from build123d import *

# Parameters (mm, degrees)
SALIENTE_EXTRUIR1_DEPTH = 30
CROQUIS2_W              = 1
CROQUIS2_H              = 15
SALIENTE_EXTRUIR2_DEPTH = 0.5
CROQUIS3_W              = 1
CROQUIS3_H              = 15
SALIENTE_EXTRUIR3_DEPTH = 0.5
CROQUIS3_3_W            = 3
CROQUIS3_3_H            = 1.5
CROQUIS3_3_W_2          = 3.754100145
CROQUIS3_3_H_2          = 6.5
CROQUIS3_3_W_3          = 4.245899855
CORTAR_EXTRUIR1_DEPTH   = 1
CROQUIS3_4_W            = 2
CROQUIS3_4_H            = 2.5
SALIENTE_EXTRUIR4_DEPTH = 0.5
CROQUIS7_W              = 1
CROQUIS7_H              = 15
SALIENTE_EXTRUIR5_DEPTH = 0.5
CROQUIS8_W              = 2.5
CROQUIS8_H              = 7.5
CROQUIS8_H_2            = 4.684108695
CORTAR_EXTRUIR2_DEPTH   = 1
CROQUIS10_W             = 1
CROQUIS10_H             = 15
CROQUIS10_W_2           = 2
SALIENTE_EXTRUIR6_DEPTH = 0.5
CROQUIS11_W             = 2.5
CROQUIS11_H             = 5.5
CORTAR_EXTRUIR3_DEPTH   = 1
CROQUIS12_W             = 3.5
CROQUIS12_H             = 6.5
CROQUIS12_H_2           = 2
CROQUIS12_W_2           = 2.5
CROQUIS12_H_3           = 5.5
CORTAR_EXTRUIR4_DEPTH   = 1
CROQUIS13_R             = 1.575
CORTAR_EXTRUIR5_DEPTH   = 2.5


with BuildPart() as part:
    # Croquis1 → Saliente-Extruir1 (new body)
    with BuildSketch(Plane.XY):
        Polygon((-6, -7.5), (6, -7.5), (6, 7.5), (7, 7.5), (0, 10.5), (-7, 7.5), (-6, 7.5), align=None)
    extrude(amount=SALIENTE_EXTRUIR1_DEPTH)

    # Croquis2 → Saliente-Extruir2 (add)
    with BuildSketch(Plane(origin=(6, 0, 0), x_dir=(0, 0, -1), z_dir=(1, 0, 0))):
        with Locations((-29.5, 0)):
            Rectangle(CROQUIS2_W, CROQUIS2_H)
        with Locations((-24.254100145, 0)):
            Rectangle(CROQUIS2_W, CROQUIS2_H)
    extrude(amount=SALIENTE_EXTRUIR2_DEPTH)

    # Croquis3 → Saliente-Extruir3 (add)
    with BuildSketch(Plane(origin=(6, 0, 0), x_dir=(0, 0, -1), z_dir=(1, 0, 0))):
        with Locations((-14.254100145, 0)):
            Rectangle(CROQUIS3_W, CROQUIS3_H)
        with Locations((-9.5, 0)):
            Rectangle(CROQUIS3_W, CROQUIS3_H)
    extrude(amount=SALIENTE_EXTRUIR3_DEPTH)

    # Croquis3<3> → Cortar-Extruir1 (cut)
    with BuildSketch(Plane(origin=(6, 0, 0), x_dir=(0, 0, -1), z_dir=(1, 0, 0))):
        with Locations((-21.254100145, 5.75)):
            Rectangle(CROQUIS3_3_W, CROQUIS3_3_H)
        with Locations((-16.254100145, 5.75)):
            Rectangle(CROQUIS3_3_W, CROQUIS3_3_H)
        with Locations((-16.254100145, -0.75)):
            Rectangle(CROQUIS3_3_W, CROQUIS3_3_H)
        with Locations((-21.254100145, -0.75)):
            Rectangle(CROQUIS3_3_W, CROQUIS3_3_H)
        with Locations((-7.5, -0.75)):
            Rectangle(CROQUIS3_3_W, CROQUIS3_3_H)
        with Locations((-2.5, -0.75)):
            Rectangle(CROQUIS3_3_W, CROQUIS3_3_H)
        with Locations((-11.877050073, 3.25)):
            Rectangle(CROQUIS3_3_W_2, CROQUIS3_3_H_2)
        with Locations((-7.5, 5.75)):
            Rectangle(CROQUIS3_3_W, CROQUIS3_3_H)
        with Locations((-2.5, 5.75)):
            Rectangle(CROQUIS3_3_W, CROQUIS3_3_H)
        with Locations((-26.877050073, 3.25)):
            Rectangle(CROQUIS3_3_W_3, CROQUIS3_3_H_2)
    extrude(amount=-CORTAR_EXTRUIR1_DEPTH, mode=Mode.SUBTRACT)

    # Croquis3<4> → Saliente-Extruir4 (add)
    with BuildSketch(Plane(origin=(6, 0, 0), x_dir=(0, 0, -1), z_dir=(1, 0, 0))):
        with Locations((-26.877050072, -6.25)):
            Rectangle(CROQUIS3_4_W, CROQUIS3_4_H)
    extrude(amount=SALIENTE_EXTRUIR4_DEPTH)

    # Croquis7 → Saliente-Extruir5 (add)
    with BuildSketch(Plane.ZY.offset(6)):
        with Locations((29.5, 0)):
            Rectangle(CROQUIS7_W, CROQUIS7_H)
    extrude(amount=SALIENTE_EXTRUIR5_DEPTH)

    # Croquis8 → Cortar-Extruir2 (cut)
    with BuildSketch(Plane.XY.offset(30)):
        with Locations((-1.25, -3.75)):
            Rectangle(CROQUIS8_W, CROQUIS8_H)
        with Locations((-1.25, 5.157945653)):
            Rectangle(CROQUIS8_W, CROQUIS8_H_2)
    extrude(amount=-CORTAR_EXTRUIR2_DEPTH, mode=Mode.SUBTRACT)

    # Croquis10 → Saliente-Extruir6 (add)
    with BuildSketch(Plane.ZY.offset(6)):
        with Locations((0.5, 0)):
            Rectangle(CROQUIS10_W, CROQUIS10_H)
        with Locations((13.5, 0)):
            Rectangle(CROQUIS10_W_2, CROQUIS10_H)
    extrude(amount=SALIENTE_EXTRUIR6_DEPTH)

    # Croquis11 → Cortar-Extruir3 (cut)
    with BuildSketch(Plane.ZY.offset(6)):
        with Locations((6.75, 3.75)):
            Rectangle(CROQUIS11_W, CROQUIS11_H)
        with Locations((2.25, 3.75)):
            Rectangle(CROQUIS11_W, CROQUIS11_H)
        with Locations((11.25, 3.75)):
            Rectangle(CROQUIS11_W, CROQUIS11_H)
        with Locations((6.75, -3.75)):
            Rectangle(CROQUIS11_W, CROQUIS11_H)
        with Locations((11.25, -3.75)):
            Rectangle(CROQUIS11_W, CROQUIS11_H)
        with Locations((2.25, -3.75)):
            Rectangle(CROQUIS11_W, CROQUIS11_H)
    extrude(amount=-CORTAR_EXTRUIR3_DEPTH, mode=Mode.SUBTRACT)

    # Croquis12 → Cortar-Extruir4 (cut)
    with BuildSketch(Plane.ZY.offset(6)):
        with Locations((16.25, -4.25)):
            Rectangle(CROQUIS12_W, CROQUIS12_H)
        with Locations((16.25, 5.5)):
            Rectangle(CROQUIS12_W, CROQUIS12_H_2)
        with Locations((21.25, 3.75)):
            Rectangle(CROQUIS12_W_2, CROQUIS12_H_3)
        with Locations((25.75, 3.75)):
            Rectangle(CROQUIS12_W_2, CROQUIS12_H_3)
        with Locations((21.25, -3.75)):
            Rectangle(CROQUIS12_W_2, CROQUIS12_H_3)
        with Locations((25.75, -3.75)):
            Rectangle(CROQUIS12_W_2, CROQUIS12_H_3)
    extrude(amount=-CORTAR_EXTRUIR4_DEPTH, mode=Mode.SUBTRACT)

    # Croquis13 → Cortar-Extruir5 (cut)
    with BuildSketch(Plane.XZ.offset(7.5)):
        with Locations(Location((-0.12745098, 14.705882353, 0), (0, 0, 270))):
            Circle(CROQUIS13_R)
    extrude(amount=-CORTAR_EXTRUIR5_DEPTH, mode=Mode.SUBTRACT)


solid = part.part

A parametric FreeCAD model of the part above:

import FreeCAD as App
import Part
import Sketcher

V = App.Vector
Q = App.Units.Quantity

doc = App.newDocument("Part")
params = doc.addObject("Spreadsheet::Sheet", "Params")
for row, (alias, value) in enumerate([
    ("sketch1_width", "12 mm"),
    ("sketch1_width2", "1 mm"),
    ("sketch1_height", "15 mm"),
    ("pad1_length", "30 mm"),
    ("sketch2_width", "15 mm"),
    ("sketch2_height", "1 mm"),
    ("pad2_length", "0.5 mm"),
    ("sketch3_width", "15 mm"),
    ("sketch3_height", "1 mm"),
    ("pad3_length", "0.5 mm"),
    ("sketch4_height", "3 mm"),
    ("sketch4_width", "1.5 mm"),
    ("sketch4_width2", "6.5 mm"),
    ("pocket1_length", "1 mm"),
    ("sketch5_height", "2 mm"),
    ("sketch5_width", "2.5 mm"),
    ("pad4_length", "0.5 mm"),
    ("sketch6_width", "15 mm"),
    ("sketch6_height", "1 mm"),
    ("pad5_length", "0.5 mm"),
    ("sketch7_width", "2.5 mm"),
    ("sketch7_height", "7.5 mm"),
    ("pocket2_length", "1 mm"),
    ("sketch8_width", "15 mm"),
    ("sketch8_height", "1 mm"),
    ("sketch8_height2", "2 mm"),
    ("pad6_length", "0.5 mm"),
    ("sketch9_width", "5.5 mm"),
    ("sketch9_height", "2.5 mm"),
    ("pocket3_length", "1 mm"),
    ("sketch10_width", "2 mm"),
    ("sketch10_width2", "6.5 mm"),
    ("sketch10_width3", "5.5 mm"),
    ("sketch10_height", "3.5 mm"),
    ("sketch10_height2", "2.5 mm"),
    ("pocket4_length", "1 mm"),
    ("sketch11_diameter", "3.15 mm"),
    ("pocket5_length", "2.5 mm"),
], start=1):
    params.set(f"A{row}", alias)
    params.set(f"B{row}", "=" + value)
    params.setAlias(f"B{row}", alias)

body = doc.addObject("PartDesign::Body", "Body")

sketch1 = body.newObject("Sketcher::SketchObject", "Sketch")
sketch1.AttachmentSupport = (doc.getObject("XY_Plane"), [""])
sketch1.MapMode = "FlatFace"
sketch1.addGeometry([
    Part.LineSegment(V(-6, -7.5, 0), V(6, -7.5, 0)),
    Part.LineSegment(V(6, -7.5, 0), V(6, 7.5, 0)),
    Part.LineSegment(V(6, 7.5, 0), V(7, 7.5, 0)),
    Part.LineSegment(V(7, 7.5, 0), V(0, 10.5, 0)),
    Part.LineSegment(V(0, 10.5, 0), V(-7, 7.5, 0)),
    Part.LineSegment(V(-7, 7.5, 0), V(-6, 7.5, 0)),
    Part.LineSegment(V(-6, 7.5, 0), V(-6, -7.5, 0)),
], False)
sketch1.addConstraint([
    Sketcher.Constraint("Coincident", 0, 2, 1, 1),
    Sketcher.Constraint("Coincident", 1, 2, 2, 1),
    Sketcher.Constraint("Coincident", 2, 2, 3, 1),
    Sketcher.Constraint("Coincident", 3, 2, 4, 1),
    Sketcher.Constraint("Coincident", 4, 2, 5, 1),
    Sketcher.Constraint("Coincident", 5, 2, 6, 1),
    Sketcher.Constraint("Coincident", 6, 2, 0, 1),
    Sketcher.Constraint("Horizontal", 0),
    Sketcher.Constraint("Vertical", 1),
    Sketcher.Constraint("Horizontal", 2),
    Sketcher.Constraint("Horizontal", 5),
    Sketcher.Constraint("Vertical", 6),
    Sketcher.Constraint("Symmetric", 0, 2, 5, 2, -1, 1),
    Sketcher.Constraint("Symmetric", 2, 2, 4, 2, -2),
    Sketcher.Constraint("PointOnObject", 3, 2, -2),
    Sketcher.Constraint("DistanceX", 0, 1, 0, 2, Q("12 mm")),
    Sketcher.Constraint("DistanceX", 2, 1, 2, 2, Q("1 mm")),
    Sketcher.Constraint("DistanceY", 1, 1, 1, 2, Q("15 mm")),
    Sketcher.Constraint("DistanceY", 1, 2, 3, 2, Q("3 mm")),
])
sketch1.setExpression("Constraints[15]", "Params.sketch1_width")
sketch1.setExpression("Constraints[16]", "Params.sketch1_width2")
sketch1.setExpression("Constraints[17]", "Params.sketch1_height")
pad1 = body.newObject("PartDesign::Pad", "Pad")
pad1.Profile = sketch1
pad1.setExpression("Length", "Params.pad1_length")

sketch2 = body.newObject("Sketcher::SketchObject", "Sketch001")
sketch2.AttachmentSupport = (doc.getObject("YZ_Plane"), [""])
sketch2.MapMode = "FlatFace"
sketch2.AttachmentOffset = App.Placement(V(0, 0, 6), App.Rotation())
sketch2.addGeometry([
    Part.LineSegment(V(7.5, 30, 0), V(-7.5, 30, 0)),
    Part.LineSegment(V(-7.5, 30, 0), V(-7.5, 29, 0)),
    Part.LineSegment(V(-7.5, 29, 0), V(7.5, 29, 0)),
    Part.LineSegment(V(7.5, 29, 0), V(7.5, 30, 0)),
    Part.LineSegment(V(7.5, 24.8, 0), V(-7.5, 24.8, 0)),
    Part.LineSegment(V(-7.5, 24.8, 0), V(-7.5, 23.8, 0)),
    Part.LineSegment(V(-7.5, 23.8, 0), V(7.5, 23.8, 0)),
    Part.LineSegment(V(7.5, 23.8, 0), V(7.5, 24.8, 0)),
], False)
sketch2.addConstraint([
    Sketcher.Constraint("Coincident", 0, 2, 1, 1),
    Sketcher.Constraint("Coincident", 1, 2, 2, 1),
    Sketcher.Constraint("Coincident", 2, 2, 3, 1),
    Sketcher.Constraint("Coincident", 3, 2, 0, 1),
    Sketcher.Constraint("Coincident", 4, 2, 5, 1),
    Sketcher.Constraint("Coincident", 5, 2, 6, 1),
    Sketcher.Constraint("Coincident", 6, 2, 7, 1),
    Sketcher.Constraint("Coincident", 7, 2, 4, 1),
    Sketcher.Constraint("Horizontal", 0),
    Sketcher.Constraint("Vertical", 1),
    Sketcher.Constraint("Horizontal", 2),
    Sketcher.Constraint("Vertical", 3),
    Sketcher.Constraint("Horizontal", 4),
    Sketcher.Constraint("Vertical", 5),
    Sketcher.Constraint("Horizontal", 6),
    Sketcher.Constraint("Vertical", 7),
    Sketcher.Constraint("Vertical", 1, 2, 4, 2),
    Sketcher.Constraint("Vertical", 3, 2, 6, 2),
    Sketcher.Constraint("Equal", 3, 5),
    Sketcher.Constraint("DistanceX", 0, 2, 0, 1, Q("15 mm")),
    Sketcher.Constraint("DistanceY", 1, 2, 1, 1, Q("1 mm")),
    Sketcher.Constraint("DistanceY", -1, 1, 0, 2, Q("30 mm")),
    Sketcher.Constraint("DistanceX", 0, 2, -1, 1, Q("7.5 mm")),
    Sketcher.Constraint("DistanceY", -1, 1, 4, 2, Q("24.7541 mm")),
])
sketch2.setExpression("Constraints[19]", "Params.sketch2_width")
sketch2.setExpression("Constraints[20]", "Params.sketch2_height")
pad2 = body.newObject("PartDesign::Pad", "Pad001")
pad2.Profile = sketch2
pad2.setExpression("Length", "Params.pad2_length")

sketch3 = body.newObject("Sketcher::SketchObject", "Sketch002")
sketch3.AttachmentSupport = (doc.getObject("YZ_Plane"), [""])
sketch3.MapMode = "FlatFace"
sketch3.AttachmentOffset = App.Placement(V(0, 0, 6), App.Rotation())
sketch3.addGeometry([
    Part.LineSegment(V(7.5, 14.8, 0), V(-7.5, 14.8, 0)),
    Part.LineSegment(V(-7.5, 14.8, 0), V(-7.5, 13.8, 0)),
    Part.LineSegment(V(-7.5, 13.8, 0), V(7.5, 13.8, 0)),
    Part.LineSegment(V(7.5, 13.8, 0), V(7.5, 14.8, 0)),
    Part.LineSegment(V(7.5, 10, 0), V(-7.5, 10, 0)),
    Part.LineSegment(V(-7.5, 10, 0), V(-7.5, 9, 0)),
    Part.LineSegment(V(-7.5, 9, 0), V(7.5, 9, 0)),
    Part.LineSegment(V(7.5, 9, 0), V(7.5, 10, 0)),
], False)
sketch3.addConstraint([
    Sketcher.Constraint("Coincident", 0, 2, 1, 1),
    Sketcher.Constraint("Coincident", 1, 2, 2, 1),
    Sketcher.Constraint("Coincident", 2, 2, 3, 1),
    Sketcher.Constraint("Coincident", 3, 2, 0, 1),
    Sketcher.Constraint("Coincident", 4, 2, 5, 1),
    Sketcher.Constraint("Coincident", 5, 2, 6, 1),
    Sketcher.Constraint("Coincident", 6, 2, 7, 1),
    Sketcher.Constraint("Coincident", 7, 2, 4, 1),
    Sketcher.Constraint("Horizontal", 0),
    Sketcher.Constraint("Vertical", 1),
    Sketcher.Constraint("Horizontal", 2),
    Sketcher.Constraint("Vertical", 3),
    Sketcher.Constraint("Horizontal", 4),
    Sketcher.Constraint("Vertical", 5),
    Sketcher.Constraint("Horizontal", 6),
    Sketcher.Constraint("Vertical", 7),
    Sketcher.Constraint("Vertical", 1, 2, 4, 2),
    Sketcher.Constraint("Vertical", 3, 2, 6, 2),
    Sketcher.Constraint("Equal", 3, 5),
    Sketcher.Constraint("DistanceX", 0, 2, 0, 1, Q("15 mm")),
    Sketcher.Constraint("DistanceY", 1, 2, 1, 1, Q("1 mm")),
    Sketcher.Constraint("DistanceY", -1, 1, 4, 2, Q("10 mm")),
    Sketcher.Constraint("DistanceX", 0, 2, -1, 1, Q("7.5 mm")),
    Sketcher.Constraint("DistanceY", -1, 1, 0, 2, Q("14.7541 mm")),
])
sketch3.setExpression("Constraints[19]", "Params.sketch3_width")
sketch3.setExpression("Constraints[20]", "Params.sketch3_height")
pad3 = body.newObject("PartDesign::Pad", "Pad002")
pad3.Profile = sketch3
pad3.setExpression("Length", "Params.pad3_length")

sketch4 = body.newObject("Sketcher::SketchObject", "Sketch003")
sketch4.AttachmentSupport = (doc.getObject("YZ_Plane"), [""])
sketch4.MapMode = "FlatFace"
sketch4.AttachmentOffset = App.Placement(V(0, 0, 6), App.Rotation())
sketch4.addGeometry([
    Part.LineSegment(V(6.5, 22.8, 0), V(5, 22.8, 0)),
    Part.LineSegment(V(5, 22.8, 0), V(5, 19.8, 0)),
    Part.LineSegment(V(5, 19.8, 0), V(6.5, 19.8, 0)),
    Part.LineSegment(V(6.5, 19.8, 0), V(6.5, 22.8, 0)),
    Part.LineSegment(V(6.5, 17.8, 0), V(5, 17.8, 0)),
    Part.LineSegment(V(5, 17.8, 0), V(5, 14.8, 0)),
    Part.LineSegment(V(5, 14.8, 0), V(6.5, 14.8, 0)),
    Part.LineSegment(V(6.5, 14.8, 0), V(6.5, 17.8, 0)),
    Part.LineSegment(V(0, 17.8, 0), V(-1.5, 17.8, 0)),
    Part.LineSegment(V(-1.5, 17.8, 0), V(-1.5, 14.8, 0)),
    Part.LineSegment(V(-1.5, 14.8, 0), V(0, 14.8, 0)),
    Part.LineSegment(V(0, 14.8, 0), V(0, 17.8, 0)),
    Part.LineSegment(V(0, 22.8, 0), V(-1.5, 22.8, 0)),
    Part.LineSegment(V(-1.5, 22.8, 0), V(-1.5, 19.8, 0)),
    Part.LineSegment(V(-1.5, 19.8, 0), V(0, 19.8, 0)),
    Part.LineSegment(V(0, 19.8, 0), V(0, 22.8, 0)),
    Part.LineSegment(V(0, 9, 0), V(-1.5, 9, 0)),
    Part.LineSegment(V(-1.5, 9, 0), V(-1.5, 6, 0)),
    Part.LineSegment(V(-1.5, 6, 0), V(0, 6, 0)),
    Part.LineSegment(V(0, 6, 0), V(0, 9, 0)),
    Part.LineSegment(V(0, 4, 0), V(-1.5, 4, 0)),
    Part.LineSegment(V(-1.5, 4, 0), V(-1.5, 1, 0)),
    Part.LineSegment(V(-1.5, 1, 0), V(0, 1, 0)),
    Part.LineSegment(V(0, 1, 0), V(0, 4, 0)),
    Part.LineSegment(V(6.5, 13.8, 0), V(0, 13.8, 0)),
    Part.LineSegment(V(0, 13.8, 0), V(0, 10, 0)),
    Part.LineSegment(V(0, 10, 0), V(6.5, 10, 0)),
    Part.LineSegment(V(6.5, 10, 0), V(6.5, 13.8, 0)),
    Part.LineSegment(V(6.5, 9, 0), V(5, 9, 0)),
    Part.LineSegment(V(5, 9, 0), V(5, 6, 0)),
    Part.LineSegment(V(5, 6, 0), V(6.5, 6, 0)),
    Part.LineSegment(V(6.5, 6, 0), V(6.5, 9, 0)),
    Part.LineSegment(V(6.5, 4, 0), V(5, 4, 0)),
    Part.LineSegment(V(5, 4, 0), V(5, 1, 0)),
    Part.LineSegment(V(5, 1, 0), V(6.5, 1, 0)),
    Part.LineSegment(V(6.5, 1, 0), V(6.5, 4, 0)),
    Part.LineSegment(V(6.5, 29, 0), V(0, 29, 0)),
    Part.LineSegment(V(0, 29, 0), V(0, 24.8, 0)),
    Part.LineSegment(V(0, 24.8, 0), V(6.5, 24.8, 0)),
    Part.LineSegment(V(6.5, 24.8, 0), V(6.5, 29, 0)),
], False)
sketch4.addConstraint([
    Sketcher.Constraint("Coincident", 0, 2, 1, 1),
    Sketcher.Constraint("Coincident", 1, 2, 2, 1),
    Sketcher.Constraint("Coincident", 2, 2, 3, 1),
    Sketcher.Constraint("Coincident", 3, 2, 0, 1),
    Sketcher.Constraint("Coincident", 4, 2, 5, 1),
    Sketcher.Constraint("Coincident", 5, 2, 6, 1),
    Sketcher.Constraint("Coincident", 6, 2, 7, 1),
    Sketcher.Constraint("Coincident", 7, 2, 4, 1),
    Sketcher.Constraint("Coincident", 8, 2, 9, 1),
    Sketcher.Constraint("Coincident", 9, 2, 10, 1),
    Sketcher.Constraint("Coincident", 10, 2, 11, 1),
    Sketcher.Constraint("Coincident", 11, 2, 8, 1),
    Sketcher.Constraint("Coincident", 12, 2, 13, 1),
    Sketcher.Constraint("Coincident", 13, 2, 14, 1),
    Sketcher.Constraint("Coincident", 14, 2, 15, 1),
    Sketcher.Constraint("Coincident", 15, 2, 12, 1),
    Sketcher.Constraint("Coincident", 16, 2, 17, 1),
    Sketcher.Constraint("Coincident", 17, 2, 18, 1),
    Sketcher.Constraint("Coincident", 18, 2, 19, 1),
    Sketcher.Constraint("Coincident", 19, 2, 16, 1),
    Sketcher.Constraint("Coincident", 20, 2, 21, 1),
    Sketcher.Constraint("Coincident", 21, 2, 22, 1),
    Sketcher.Constraint("Coincident", 22, 2, 23, 1),
    Sketcher.Constraint("Coincident", 23, 2, 20, 1),
    Sketcher.Constraint("Coincident", 24, 2, 25, 1),
    Sketcher.Constraint("Coincident", 25, 2, 26, 1),
    Sketcher.Constraint("Coincident", 26, 2, 27, 1),
    Sketcher.Constraint("Coincident", 27, 2, 24, 1),
    Sketcher.Constraint("Coincident", 28, 2, 29, 1),
    Sketcher.Constraint("Coincident", 29, 2, 30, 1),
    Sketcher.Constraint("Coincident", 30, 2, 31, 1),
    Sketcher.Constraint("Coincident", 31, 2, 28, 1),
    Sketcher.Constraint("Coincident", 32, 2, 33, 1),
    Sketcher.Constraint("Coincident", 33, 2, 34, 1),
    Sketcher.Constraint("Coincident", 34, 2, 35, 1),
    Sketcher.Constraint("Coincident", 35, 2, 32, 1),
    Sketcher.Constraint("Coincident", 36, 2, 37, 1),
    Sketcher.Constraint("Coincident", 37, 2, 38, 1),
    Sketcher.Constraint("Coincident", 38, 2, 39, 1),
    Sketcher.Constraint("Coincident", 39, 2, 36, 1),
    Sketcher.Constraint("Horizontal", 0),
    Sketcher.Constraint("Vertical", 1),
    Sketcher.Constraint("Horizontal", 2),
    Sketcher.Constraint("Vertical", 3),
    Sketcher.Constraint("Horizontal", 4),
    Sketcher.Constraint("Vertical", 5),
    Sketcher.Constraint("Horizontal", 6),
    Sketcher.Constraint("Vertical", 7),
    Sketcher.Constraint("Horizontal", 8),
    Sketcher.Constraint("Vertical", 9),
    Sketcher.Constraint("Horizontal", 10),
    Sketcher.Constraint("Vertical", 11),
    Sketcher.Constraint("Horizontal", 12),
    Sketcher.Constraint("Vertical", 13),
    Sketcher.Constraint("Horizontal", 14),
    Sketcher.Constraint("Vertical", 15),
    Sketcher.Constraint("Horizontal", 16),
    Sketcher.Constraint("Vertical", 17),
    Sketcher.Constraint("Horizontal", 18),
    Sketcher.Constraint("Vertical", 19),
    Sketcher.Constraint("Horizontal", 20),
    Sketcher.Constraint("Vertical", 21),
    Sketcher.Constraint("Horizontal", 22),
    Sketcher.Constraint("Vertical", 23),
    Sketcher.Constraint("Horizontal", 24),
    Sketcher.Constraint("Vertical", 25),
    Sketcher.Constraint("Horizontal", 26),
    Sketcher.Constraint("Vertical", 27),
    Sketcher.Constraint("Horizontal", 28),
    Sketcher.Constraint("Vertical", 29),
    Sketcher.Constraint("Horizontal", 30),
    Sketcher.Constraint("Vertical", 31),
    Sketcher.Constraint("Horizontal", 32),
    Sketcher.Constraint("Vertical", 33),
    Sketcher.Constraint("Horizontal", 34),
    Sketcher.Constraint("Vertical", 35),
    Sketcher.Constraint("Horizontal", 36),
    Sketcher.Constraint("Vertical", 37),
    Sketcher.Constraint("Horizontal", 38),
    Sketcher.Constraint("Vertical", 39),
    Sketcher.Constraint("PointOnObject", 10, 2, -2),
    Sketcher.Constraint("PointOnObject", 14, 2, -2),
    Sketcher.Constraint("PointOnObject", 18, 2, -2),
    Sketcher.Constraint("PointOnObject", 22, 2, -2),
    Sketcher.Constraint("PointOnObject", 24, 2, -2),
    Sketcher.Constraint("PointOnObject", 36, 2, -2),
    Sketcher.Constraint("Horizontal", 7, 2, 8, 2),
    Sketcher.Constraint("Horizontal", 6, 2, 9, 2),
    Sketcher.Constraint("Horizontal", 3, 2, 12, 2),
    Sketcher.Constraint("Horizontal", 2, 2, 13, 2),
    Sketcher.Constraint("Horizontal", 19, 2, 28, 2),
    Sketcher.Constraint("Horizontal", 18, 2, 29, 2),
    Sketcher.Constraint("Horizontal", 23, 2, 32, 2),
    Sketcher.Constraint("Horizontal", 22, 2, 33, 2),
    Sketcher.Constraint("Vertical", 1, 2, 4, 2),
    Sketcher.Constraint("Vertical", 3, 2, 6, 2),
    Sketcher.Constraint("Vertical", 9, 2, 12, 2),
    Sketcher.Constraint("Vertical", 13, 2, 16, 2),
    Sketcher.Constraint("Vertical", 17, 2, 20, 2),
    Sketcher.Constraint("Vertical", 7, 2, 26, 2),
    Sketcher.Constraint("Vertical", 5, 2, 28, 2),
    Sketcher.Constraint("Vertical", 27, 2, 30, 2),
    Sketcher.Constraint("Vertical", 29, 2, 32, 2),
    Sketcher.Constraint("Vertical", 31, 2, 34, 2),
    Sketcher.Constraint("Vertical", 35, 2, 38, 2),
    Sketcher.Constraint("Equal", 6, 8),
    Sketcher.Constraint("Equal", 3, 5),
    Sketcher.Constraint("Equal", 15, 17),
    Sketcher.Constraint("Equal", 19, 21),
    Sketcher.Constraint("DistanceY", 1, 2, 1, 1, Q("3 mm")),
    Sketcher.Constraint("DistanceX", 0, 2, 0, 1, Q("1.5 mm")),
    Sketcher.Constraint("DistanceX", 24, 2, 24, 1, Q("6.5 mm")),
    Sketcher.Constraint("DistanceY", -1, 1, 16, 2, Q("9 mm")),
    Sketcher.Constraint("DistanceY", -1, 1, 20, 2, Q("4 mm")),
    Sketcher.Constraint("DistanceY", -1, 1, 25, 2, Q("10 mm")),
    Sketcher.Constraint("DistanceY", -1, 1, 36, 2, Q("29 mm")),
    Sketcher.Constraint("DistanceY", 4, 2, 1, 2, Q("2 mm")),
    Sketcher.Constraint("DistanceY", 24, 2, 10, 2, Q("1 mm")),
    Sketcher.Constraint("DistanceY", 15, 2, 37, 2, Q("2 mm")),
    Sketcher.Constraint("DistanceY", 25, 2, 25, 1, Q("3.7541 mm")),
])
sketch4.setExpression("Constraints[109]", "Params.sketch4_height")
sketch4.setExpression("Constraints[110]", "Params.sketch4_width")
sketch4.setExpression("Constraints[111]", "Params.sketch4_width2")
pocket1 = body.newObject("PartDesign::Pocket", "Pocket")
pocket1.Profile = sketch4
pocket1.setExpression("Length", "Params.pocket1_length")

sketch5 = body.newObject("Sketcher::SketchObject", "Sketch004")
sketch5.AttachmentSupport = (doc.getObject("YZ_Plane"), [""])
sketch5.MapMode = "FlatFace"
sketch5.AttachmentOffset = App.Placement(V(0, 0, 6), App.Rotation())
sketch5.addGeometry([
    Part.LineSegment(V(-5, 27.9, 0), V(-7.5, 27.9, 0)),
    Part.LineSegment(V(-7.5, 27.9, 0), V(-7.5, 25.9, 0)),
    Part.LineSegment(V(-7.5, 25.9, 0), V(-5, 25.9, 0)),
    Part.LineSegment(V(-5, 25.9, 0), V(-5, 27.9, 0)),
], False)
sketch5.addConstraint([
    Sketcher.Constraint("Coincident", 0, 2, 1, 1),
    Sketcher.Constraint("Coincident", 1, 2, 2, 1),
    Sketcher.Constraint("Coincident", 2, 2, 3, 1),
    Sketcher.Constraint("Coincident", 3, 2, 0, 1),
    Sketcher.Constraint("Horizontal", 0),
    Sketcher.Constraint("Vertical", 1),
    Sketcher.Constraint("Horizontal", 2),
    Sketcher.Constraint("Vertical", 3),
    Sketcher.Constraint("DistanceY", 1, 2, 1, 1, Q("2 mm")),
    Sketcher.Constraint("DistanceX", 0, 2, 0, 1, Q("2.5 mm")),
    Sketcher.Constraint("DistanceX", 2, 2, -1, 1, Q("5 mm")),
    Sketcher.Constraint("DistanceY", -1, 1, 0, 2, Q("27.87705 mm")),
])
sketch5.setExpression("Constraints[8]", "Params.sketch5_height")
sketch5.setExpression("Constraints[9]", "Params.sketch5_width")
pad4 = body.newObject("PartDesign::Pad", "Pad003")
pad4.Profile = sketch5
pad4.setExpression("Length", "Params.pad4_length")

sketch6 = body.newObject("Sketcher::SketchObject", "Sketch005")
sketch6.AttachmentSupport = (doc.getObject("YZ_Plane"), [""])
sketch6.MapMode = "FlatFace"
sketch6.AttachmentOffset = App.Placement(V(0, 0, -6), App.Rotation())
sketch6.addGeometry([
    Part.LineSegment(V(7.5, 29, 0), V(-7.5, 29, 0)),
    Part.LineSegment(V(-7.5, 29, 0), V(-7.5, 30, 0)),
    Part.LineSegment(V(-7.5, 30, 0), V(7.5, 30, 0)),
    Part.LineSegment(V(7.5, 30, 0), V(7.5, 29, 0)),
], False)
sketch6.addConstraint([
    Sketcher.Constraint("Coincident", 0, 2, 1, 1),
    Sketcher.Constraint("Coincident", 1, 2, 2, 1),
    Sketcher.Constraint("Coincident", 2, 2, 3, 1),
    Sketcher.Constraint("Coincident", 3, 2, 0, 1),
    Sketcher.Constraint("Horizontal", 0),
    Sketcher.Constraint("Vertical", 1),
    Sketcher.Constraint("Horizontal", 2),
    Sketcher.Constraint("Vertical", 3),
    Sketcher.Constraint("DistanceX", 0, 2, 0, 1, Q("15 mm")),
    Sketcher.Constraint("DistanceY", 1, 1, 1, 2, Q("1 mm")),
    Sketcher.Constraint("DistanceY", -1, 1, 0, 2, Q("29 mm")),
    Sketcher.Constraint("DistanceX", 0, 2, -1, 1, Q("7.5 mm")),
])
sketch6.setExpression("Constraints[8]", "Params.sketch6_width")
sketch6.setExpression("Constraints[9]", "Params.sketch6_height")
pad5 = body.newObject("PartDesign::Pad", "Pad004")
pad5.Profile = sketch6
pad5.setExpression("Length", "Params.pad5_length")
pad5.Reversed = True

sketch7 = body.newObject("Sketcher::SketchObject", "Sketch006")
sketch7.AttachmentSupport = (doc.getObject("XY_Plane"), [""])
sketch7.MapMode = "FlatFace"
sketch7.AttachmentOffset = App.Placement(V(0, 0, 30), App.Rotation())
sketch7.addGeometry([
    Part.LineSegment(V(-2.5, 0, 0), V(-2.5, -7.5, 0)),
    Part.LineSegment(V(-2.5, -7.5, 0), V(0, -7.5, 0)),
    Part.LineSegment(V(0, -7.5, 0), V(0, 0, 0)),
    Part.LineSegment(V(0, 0, 0), V(-2.5, 0, 0)),
    Part.LineSegment(V(-2.5, 7.5, 0), V(-2.5, 2.8, 0)),
    Part.LineSegment(V(-2.5, 2.8, 0), V(0, 2.8, 0)),
    Part.LineSegment(V(0, 2.8, 0), V(0, 7.5, 0)),
    Part.LineSegment(V(0, 7.5, 0), V(-2.5, 7.5, 0)),
], False)
sketch7.addConstraint([
    Sketcher.Constraint("Coincident", 0, 2, 1, 1),
    Sketcher.Constraint("Coincident", 1, 2, 2, 1),
    Sketcher.Constraint("Coincident", 2, 2, 3, 1),
    Sketcher.Constraint("Coincident", 3, 2, 0, 1),
    Sketcher.Constraint("Coincident", 4, 2, 5, 1),
    Sketcher.Constraint("Coincident", 5, 2, 6, 1),
    Sketcher.Constraint("Coincident", 6, 2, 7, 1),
    Sketcher.Constraint("Coincident", 7, 2, 4, 1),
    Sketcher.Constraint("Vertical", 0),
    Sketcher.Constraint("Horizontal", 1),
    Sketcher.Constraint("Vertical", 2),
    Sketcher.Constraint("Horizontal", 3),
    Sketcher.Constraint("Vertical", 4),
    Sketcher.Constraint("Horizontal", 5),
    Sketcher.Constraint("Vertical", 6),
    Sketcher.Constraint("Horizontal", 7),
    Sketcher.Constraint("Coincident", 2, 2, -1, 1),
    Sketcher.Constraint("Symmetric", 1, 2, 6, 2, -1, 1),
    Sketcher.Constraint("Vertical", 3, 2, 4, 2),
    Sketcher.Constraint("DistanceX", 1, 1, 1, 2, Q("2.5 mm")),
    Sketcher.Constraint("DistanceY", 0, 2, 0, 1, Q("7.5 mm")),
    Sketcher.Constraint("DistanceY", 4, 2, 4, 1, Q("4.684109 mm")),
])
sketch7.setExpression("Constraints[19]", "Params.sketch7_width")
sketch7.setExpression("Constraints[20]", "Params.sketch7_height")
pocket2 = body.newObject("PartDesign::Pocket", "Pocket001")
pocket2.Profile = sketch7
pocket2.setExpression("Length", "Params.pocket2_length")

sketch8 = body.newObject("Sketcher::SketchObject", "Sketch007")
sketch8.AttachmentSupport = (doc.getObject("YZ_Plane"), [""])
sketch8.MapMode = "FlatFace"
sketch8.AttachmentOffset = App.Placement(V(0, 0, -6), App.Rotation())
sketch8.addGeometry([
    Part.LineSegment(V(7.5, 0, 0), V(-7.5, 0, 0)),
    Part.LineSegment(V(-7.5, 0, 0), V(-7.5, 1, 0)),
    Part.LineSegment(V(-7.5, 1, 0), V(7.5, 1, 0)),
    Part.LineSegment(V(7.5, 1, 0), V(7.5, 0, 0)),
    Part.LineSegment(V(7.5, 12.5, 0), V(-7.5, 12.5, 0)),
    Part.LineSegment(V(-7.5, 12.5, 0), V(-7.5, 14.5, 0)),
    Part.LineSegment(V(-7.5, 14.5, 0), V(7.5, 14.5, 0)),
    Part.LineSegment(V(7.5, 14.5, 0), V(7.5, 12.5, 0)),
], False)
sketch8.addConstraint([
    Sketcher.Constraint("Coincident", 0, 2, 1, 1),
    Sketcher.Constraint("Coincident", 1, 2, 2, 1),
    Sketcher.Constraint("Coincident", 2, 2, 3, 1),
    Sketcher.Constraint("Coincident", 3, 2, 0, 1),
    Sketcher.Constraint("Coincident", 4, 2, 5, 1),
    Sketcher.Constraint("Coincident", 5, 2, 6, 1),
    Sketcher.Constraint("Coincident", 6, 2, 7, 1),
    Sketcher.Constraint("Coincident", 7, 2, 4, 1),
    Sketcher.Constraint("Horizontal", 0),
    Sketcher.Constraint("Vertical", 1),
    Sketcher.Constraint("Horizontal", 2),
    Sketcher.Constraint("Vertical", 3),
    Sketcher.Constraint("Horizontal", 4),
    Sketcher.Constraint("Vertical", 5),
    Sketcher.Constraint("Horizontal", 6),
    Sketcher.Constraint("Vertical", 7),
    Sketcher.Constraint("Symmetric", 0, 2, 3, 2, -1, 1),
    Sketcher.Constraint("Vertical", 1, 2, 4, 2),
    Sketcher.Constraint("Vertical", 3, 2, 6, 2),
    Sketcher.Constraint("DistanceX", 0, 2, 0, 1, Q("15 mm")),
    Sketcher.Constraint("DistanceY", 1, 1, 1, 2, Q("1 mm")),
    Sketcher.Constraint("DistanceY", 5, 1, 5, 2, Q("2 mm")),
    Sketcher.Constraint("DistanceY", -1, 1, 4, 2, Q("12.5 mm")),
])
sketch8.setExpression("Constraints[19]", "Params.sketch8_width")
sketch8.setExpression("Constraints[20]", "Params.sketch8_height")
sketch8.setExpression("Constraints[21]", "Params.sketch8_height2")
pad6 = body.newObject("PartDesign::Pad", "Pad005")
pad6.Profile = sketch8
pad6.setExpression("Length", "Params.pad6_length")
pad6.Reversed = True

sketch9 = body.newObject("Sketcher::SketchObject", "Sketch008")
sketch9.AttachmentSupport = (doc.getObject("YZ_Plane"), [""])
sketch9.MapMode = "FlatFace"
sketch9.AttachmentOffset = App.Placement(V(0, 0, -6), App.Rotation())
sketch9.addGeometry([
    Part.LineSegment(V(6.5, 5.5, 0), V(1, 5.5, 0)),
    Part.LineSegment(V(1, 5.5, 0), V(1, 8, 0)),
    Part.LineSegment(V(1, 8, 0), V(6.5, 8, 0)),
    Part.LineSegment(V(6.5, 8, 0), V(6.5, 5.5, 0)),
    Part.LineSegment(V(6.5, 1, 0), V(1, 1, 0)),
    Part.LineSegment(V(1, 1, 0), V(1, 3.5, 0)),
    Part.LineSegment(V(1, 3.5, 0), V(6.5, 3.5, 0)),
    Part.LineSegment(V(6.5, 3.5, 0), V(6.5, 1, 0)),
    Part.LineSegment(V(6.5, 10, 0), V(1, 10, 0)),
    Part.LineSegment(V(1, 10, 0), V(1, 12.5, 0)),
    Part.LineSegment(V(1, 12.5, 0), V(6.5, 12.5, 0)),
    Part.LineSegment(V(6.5, 12.5, 0), V(6.5, 10, 0)),
    Part.LineSegment(V(-1, 5.5, 0), V(-6.5, 5.5, 0)),
    Part.LineSegment(V(-6.5, 5.5, 0), V(-6.5, 8, 0)),
    Part.LineSegment(V(-6.5, 8, 0), V(-1, 8, 0)),
    Part.LineSegment(V(-1, 8, 0), V(-1, 5.5, 0)),
    Part.LineSegment(V(-1, 10, 0), V(-6.5, 10, 0)),
    Part.LineSegment(V(-6.5, 10, 0), V(-6.5, 12.5, 0)),
    Part.LineSegment(V(-6.5, 12.5, 0), V(-1, 12.5, 0)),
    Part.LineSegment(V(-1, 12.5, 0), V(-1, 10, 0)),
    Part.LineSegment(V(-1, 1, 0), V(-6.5, 1, 0)),
    Part.LineSegment(V(-6.5, 1, 0), V(-6.5, 3.5, 0)),
    Part.LineSegment(V(-6.5, 3.5, 0), V(-1, 3.5, 0)),
    Part.LineSegment(V(-1, 3.5, 0), V(-1, 1, 0)),
], False)
sketch9.addConstraint([
    Sketcher.Constraint("Coincident", 0, 2, 1, 1),
    Sketcher.Constraint("Coincident", 1, 2, 2, 1),
    Sketcher.Constraint("Coincident", 2, 2, 3, 1),
    Sketcher.Constraint("Coincident", 3, 2, 0, 1),
    Sketcher.Constraint("Coincident", 4, 2, 5, 1),
    Sketcher.Constraint("Coincident", 5, 2, 6, 1),
    Sketcher.Constraint("Coincident", 6, 2, 7, 1),
    Sketcher.Constraint("Coincident", 7, 2, 4, 1),
    Sketcher.Constraint("Coincident", 8, 2, 9, 1),
    Sketcher.Constraint("Coincident", 9, 2, 10, 1),
    Sketcher.Constraint("Coincident", 10, 2, 11, 1),
    Sketcher.Constraint("Coincident", 11, 2, 8, 1),
    Sketcher.Constraint("Coincident", 12, 2, 13, 1),
    Sketcher.Constraint("Coincident", 13, 2, 14, 1),
    Sketcher.Constraint("Coincident", 14, 2, 15, 1),
    Sketcher.Constraint("Coincident", 15, 2, 12, 1),
    Sketcher.Constraint("Coincident", 16, 2, 17, 1),
    Sketcher.Constraint("Coincident", 17, 2, 18, 1),
    Sketcher.Constraint("Coincident", 18, 2, 19, 1),
    Sketcher.Constraint("Coincident", 19, 2, 16, 1),
    Sketcher.Constraint("Coincident", 20, 2, 21, 1),
    Sketcher.Constraint("Coincident", 21, 2, 22, 1),
    Sketcher.Constraint("Coincident", 22, 2, 23, 1),
    Sketcher.Constraint("Coincident", 23, 2, 20, 1),
    Sketcher.Constraint("Horizontal", 0),
    Sketcher.Constraint("Vertical", 1),
    Sketcher.Constraint("Horizontal", 2),
    Sketcher.Constraint("Vertical", 3),
    Sketcher.Constraint("Horizontal", 4),
    Sketcher.Constraint("Vertical", 5),
    Sketcher.Constraint("Horizontal", 6),
    Sketcher.Constraint("Vertical", 7),
    Sketcher.Constraint("Horizontal", 8),
    Sketcher.Constraint("Vertical", 9),
    Sketcher.Constraint("Horizontal", 10),
    Sketcher.Constraint("Vertical", 11),
    Sketcher.Constraint("Horizontal", 12),
    Sketcher.Constraint("Vertical", 13),
    Sketcher.Constraint("Horizontal", 14),
    Sketcher.Constraint("Vertical", 15),
    Sketcher.Constraint("Horizontal", 16),
    Sketcher.Constraint("Vertical", 17),
    Sketcher.Constraint("Horizontal", 18),
    Sketcher.Constraint("Vertical", 19),
    Sketcher.Constraint("Horizontal", 20),
    Sketcher.Constraint("Vertical", 21),
    Sketcher.Constraint("Horizontal", 22),
    Sketcher.Constraint("Vertical", 23),
    Sketcher.Constraint("Symmetric", 3, 2, 12, 2, -2),
    Sketcher.Constraint("Symmetric", 1, 2, 14, 2, -2),
    Sketcher.Constraint("Symmetric", 11, 2, 16, 2, -2),
    Sketcher.Constraint("Symmetric", 9, 2, 18, 2, -2),
    Sketcher.Constraint("Symmetric", 7, 2, 20, 2, -2),
    Sketcher.Constraint("Symmetric", 5, 2, 22, 2, -2),
    Sketcher.Constraint("Vertical", 1, 2, 4, 2),
    Sketcher.Constraint("Vertical", 3, 2, 6, 2),
    Sketcher.Constraint("Vertical", 5, 2, 8, 2),
    Sketcher.Constraint("Vertical", 7, 2, 10, 2),
    Sketcher.Constraint("Equal", 3, 5),
    Sketcher.Constraint("Equal", 7, 9),
    Sketcher.Constraint("DistanceX", 0, 2, 0, 1, Q("5.5 mm")),
    Sketcher.Constraint("DistanceY", 1, 1, 1, 2, Q("2.5 mm")),
    Sketcher.Constraint("DistanceX", -1, 1, 0, 2, Q("1 mm")),
    Sketcher.Constraint("DistanceY", -1, 1, 1, 2, Q("8 mm")),
    Sketcher.Constraint("DistanceY", -1, 1, 4, 2, Q("1 mm")),
    Sketcher.Constraint("DistanceY", -1, 1, 8, 2, Q("10 mm")),
])
sketch9.setExpression("Constraints[60]", "Params.sketch9_width")
sketch9.setExpression("Constraints[61]", "Params.sketch9_height")
pocket3 = body.newObject("PartDesign::Pocket", "Pocket002")
pocket3.Profile = sketch9
pocket3.setExpression("Length", "Params.pocket3_length")
pocket3.Reversed = True

sketch10 = body.newObject("Sketcher::SketchObject", "Sketch009")
sketch10.AttachmentSupport = (doc.getObject("YZ_Plane"), [""])
sketch10.MapMode = "FlatFace"
sketch10.AttachmentOffset = App.Placement(V(0, 0, -6), App.Rotation())
sketch10.addGeometry([
    Part.LineSegment(V(-1, 14.5, 0), V(-7.5, 14.5, 0)),
    Part.LineSegment(V(-7.5, 14.5, 0), V(-7.5, 18, 0)),
    Part.LineSegment(V(-7.5, 18, 0), V(-1, 18, 0)),
    Part.LineSegment(V(-1, 18, 0), V(-1, 14.5, 0)),
    Part.LineSegment(V(6.5, 14.5, 0), V(4.5, 14.5, 0)),
    Part.LineSegment(V(4.5, 14.5, 0), V(4.5, 18, 0)),
    Part.LineSegment(V(4.5, 18, 0), V(6.5, 18, 0)),
    Part.LineSegment(V(6.5, 18, 0), V(6.5, 14.5, 0)),
    Part.LineSegment(V(6.5, 20, 0), V(1, 20, 0)),
    Part.LineSegment(V(1, 20, 0), V(1, 22.5, 0)),
    Part.LineSegment(V(1, 22.5, 0), V(6.5, 22.5, 0)),
    Part.LineSegment(V(6.5, 22.5, 0), V(6.5, 20, 0)),
    Part.LineSegment(V(6.5, 24.5, 0), V(1, 24.5, 0)),
    Part.LineSegment(V(1, 24.5, 0), V(1, 27, 0)),
    Part.LineSegment(V(1, 27, 0), V(6.5, 27, 0)),
    Part.LineSegment(V(6.5, 27, 0), V(6.5, 24.5, 0)),
    Part.LineSegment(V(-1, 20, 0), V(-6.5, 20, 0)),
    Part.LineSegment(V(-6.5, 20, 0), V(-6.5, 22.5, 0)),
    Part.LineSegment(V(-6.5, 22.5, 0), V(-1, 22.5, 0)),
    Part.LineSegment(V(-1, 22.5, 0), V(-1, 20, 0)),
    Part.LineSegment(V(-1, 24.5, 0), V(-6.5, 24.5, 0)),
    Part.LineSegment(V(-6.5, 24.5, 0), V(-6.5, 27, 0)),
    Part.LineSegment(V(-6.5, 27, 0), V(-1, 27, 0)),
    Part.LineSegment(V(-1, 27, 0), V(-1, 24.5, 0)),
], False)
sketch10.addConstraint([
    Sketcher.Constraint("Coincident", 0, 2, 1, 1),
    Sketcher.Constraint("Coincident", 1, 2, 2, 1),
    Sketcher.Constraint("Coincident", 2, 2, 3, 1),
    Sketcher.Constraint("Coincident", 3, 2, 0, 1),
    Sketcher.Constraint("Coincident", 4, 2, 5, 1),
    Sketcher.Constraint("Coincident", 5, 2, 6, 1),
    Sketcher.Constraint("Coincident", 6, 2, 7, 1),
    Sketcher.Constraint("Coincident", 7, 2, 4, 1),
    Sketcher.Constraint("Coincident", 8, 2, 9, 1),
    Sketcher.Constraint("Coincident", 9, 2, 10, 1),
    Sketcher.Constraint("Coincident", 10, 2, 11, 1),
    Sketcher.Constraint("Coincident", 11, 2, 8, 1),
    Sketcher.Constraint("Coincident", 12, 2, 13, 1),
    Sketcher.Constraint("Coincident", 13, 2, 14, 1),
    Sketcher.Constraint("Coincident", 14, 2, 15, 1),
    Sketcher.Constraint("Coincident", 15, 2, 12, 1),
    Sketcher.Constraint("Coincident", 16, 2, 17, 1),
    Sketcher.Constraint("Coincident", 17, 2, 18, 1),
    Sketcher.Constraint("Coincident", 18, 2, 19, 1),
    Sketcher.Constraint("Coincident", 19, 2, 16, 1),
    Sketcher.Constraint("Coincident", 20, 2, 21, 1),
    Sketcher.Constraint("Coincident", 21, 2, 22, 1),
    Sketcher.Constraint("Coincident", 22, 2, 23, 1),
    Sketcher.Constraint("Coincident", 23, 2, 20, 1),
    Sketcher.Constraint("Horizontal", 0),
    Sketcher.Constraint("Vertical", 1),
    Sketcher.Constraint("Horizontal", 2),
    Sketcher.Constraint("Vertical", 3),
    Sketcher.Constraint("Horizontal", 4),
    Sketcher.Constraint("Vertical", 5),
    Sketcher.Constraint("Horizontal", 6),
    Sketcher.Constraint("Vertical", 7),
    Sketcher.Constraint("Horizontal", 8),
    Sketcher.Constraint("Vertical", 9),
    Sketcher.Constraint("Horizontal", 10),
    Sketcher.Constraint("Vertical", 11),
    Sketcher.Constraint("Horizontal", 12),
    Sketcher.Constraint("Vertical", 13),
    Sketcher.Constraint("Horizontal", 14),
    Sketcher.Constraint("Vertical", 15),
    Sketcher.Constraint("Horizontal", 16),
    Sketcher.Constraint("Vertical", 17),
    Sketcher.Constraint("Horizontal", 18),
    Sketcher.Constraint("Vertical", 19),
    Sketcher.Constraint("Horizontal", 20),
    Sketcher.Constraint("Vertical", 21),
    Sketcher.Constraint("Horizontal", 22),
    Sketcher.Constraint("Vertical", 23),
    Sketcher.Constraint("Symmetric", 11, 2, 16, 2, -2),
    Sketcher.Constraint("Symmetric", 9, 2, 18, 2, -2),
    Sketcher.Constraint("Symmetric", 15, 2, 20, 2, -2),
    Sketcher.Constraint("Symmetric", 13, 2, 22, 2, -2),
    Sketcher.Constraint("Horizontal", 3, 2, 4, 2),
    Sketcher.Constraint("Horizontal", 2, 2, 5, 2),
    Sketcher.Constraint("Vertical", 7, 2, 10, 2),
    Sketcher.Constraint("Vertical", 9, 2, 12, 2),
    Sketcher.Constraint("Vertical", 11, 2, 14, 2),
    Sketcher.Constraint("Vertical", 3, 2, 18, 2),
    Sketcher.Constraint("Equal", 11, 13),
    Sketcher.Constraint("DistanceX", 4, 2, 4, 1, Q("2 mm")),
    Sketcher.Constraint("DistanceX", 0, 2, 0, 1, Q("6.5 mm")),
    Sketcher.Constraint("DistanceX", 8, 2, 8, 1, Q("5.5 mm")),
    Sketcher.Constraint("DistanceY", 1, 1, 1, 2, Q("3.5 mm")),
    Sketcher.Constraint("DistanceY", 9, 1, 9, 2, Q("2.5 mm")),
    Sketcher.Constraint("DistanceY", -1, 1, 1, 2, Q("18 mm")),
    Sketcher.Constraint("DistanceX", 2, 2, -1, 1, Q("1 mm")),
    Sketcher.Constraint("DistanceY", -1, 1, 8, 2, Q("20 mm")),
    Sketcher.Constraint("DistanceY", -1, 1, 13, 2, Q("27 mm")),
])
sketch10.setExpression("Constraints[59]", "Params.sketch10_width")
sketch10.setExpression("Constraints[60]", "Params.sketch10_width2")
sketch10.setExpression("Constraints[61]", "Params.sketch10_width3")
sketch10.setExpression("Constraints[62]", "Params.sketch10_height")
sketch10.setExpression("Constraints[63]", "Params.sketch10_height2")
pocket4 = body.newObject("PartDesign::Pocket", "Pocket003")
pocket4.Profile = sketch10
pocket4.setExpression("Length", "Params.pocket4_length")
pocket4.Reversed = True

sketch11 = body.newObject("Sketcher::SketchObject", "Sketch010")
sketch11.AttachmentSupport = (doc.getObject("XZ_Plane"), [""])
sketch11.MapMode = "FlatFace"
sketch11.AttachmentOffset = App.Placement(V(0, 0, 7.5), App.Rotation())
sketch11.addGeometry(Part.Circle(V(-0.1, 14.7, 0), V(0, 0, 1), 1.6), False)
sketch11.addConstraint([
    Sketcher.Constraint("Diameter", 0, Q("3.15 mm")),
    Sketcher.Constraint("DistanceX", 0, 3, -1, 1, Q("0.127451 mm")),
    Sketcher.Constraint("DistanceY", -1, 1, 0, 3, Q("14.705882 mm")),
])
sketch11.setExpression("Constraints[0]", "Params.sketch11_diameter")
pocket5 = body.newObject("PartDesign::Pocket", "Pocket004")
pocket5.Profile = sketch11
pocket5.setExpression("Length", "Params.pocket5_length")

doc.recompute()
